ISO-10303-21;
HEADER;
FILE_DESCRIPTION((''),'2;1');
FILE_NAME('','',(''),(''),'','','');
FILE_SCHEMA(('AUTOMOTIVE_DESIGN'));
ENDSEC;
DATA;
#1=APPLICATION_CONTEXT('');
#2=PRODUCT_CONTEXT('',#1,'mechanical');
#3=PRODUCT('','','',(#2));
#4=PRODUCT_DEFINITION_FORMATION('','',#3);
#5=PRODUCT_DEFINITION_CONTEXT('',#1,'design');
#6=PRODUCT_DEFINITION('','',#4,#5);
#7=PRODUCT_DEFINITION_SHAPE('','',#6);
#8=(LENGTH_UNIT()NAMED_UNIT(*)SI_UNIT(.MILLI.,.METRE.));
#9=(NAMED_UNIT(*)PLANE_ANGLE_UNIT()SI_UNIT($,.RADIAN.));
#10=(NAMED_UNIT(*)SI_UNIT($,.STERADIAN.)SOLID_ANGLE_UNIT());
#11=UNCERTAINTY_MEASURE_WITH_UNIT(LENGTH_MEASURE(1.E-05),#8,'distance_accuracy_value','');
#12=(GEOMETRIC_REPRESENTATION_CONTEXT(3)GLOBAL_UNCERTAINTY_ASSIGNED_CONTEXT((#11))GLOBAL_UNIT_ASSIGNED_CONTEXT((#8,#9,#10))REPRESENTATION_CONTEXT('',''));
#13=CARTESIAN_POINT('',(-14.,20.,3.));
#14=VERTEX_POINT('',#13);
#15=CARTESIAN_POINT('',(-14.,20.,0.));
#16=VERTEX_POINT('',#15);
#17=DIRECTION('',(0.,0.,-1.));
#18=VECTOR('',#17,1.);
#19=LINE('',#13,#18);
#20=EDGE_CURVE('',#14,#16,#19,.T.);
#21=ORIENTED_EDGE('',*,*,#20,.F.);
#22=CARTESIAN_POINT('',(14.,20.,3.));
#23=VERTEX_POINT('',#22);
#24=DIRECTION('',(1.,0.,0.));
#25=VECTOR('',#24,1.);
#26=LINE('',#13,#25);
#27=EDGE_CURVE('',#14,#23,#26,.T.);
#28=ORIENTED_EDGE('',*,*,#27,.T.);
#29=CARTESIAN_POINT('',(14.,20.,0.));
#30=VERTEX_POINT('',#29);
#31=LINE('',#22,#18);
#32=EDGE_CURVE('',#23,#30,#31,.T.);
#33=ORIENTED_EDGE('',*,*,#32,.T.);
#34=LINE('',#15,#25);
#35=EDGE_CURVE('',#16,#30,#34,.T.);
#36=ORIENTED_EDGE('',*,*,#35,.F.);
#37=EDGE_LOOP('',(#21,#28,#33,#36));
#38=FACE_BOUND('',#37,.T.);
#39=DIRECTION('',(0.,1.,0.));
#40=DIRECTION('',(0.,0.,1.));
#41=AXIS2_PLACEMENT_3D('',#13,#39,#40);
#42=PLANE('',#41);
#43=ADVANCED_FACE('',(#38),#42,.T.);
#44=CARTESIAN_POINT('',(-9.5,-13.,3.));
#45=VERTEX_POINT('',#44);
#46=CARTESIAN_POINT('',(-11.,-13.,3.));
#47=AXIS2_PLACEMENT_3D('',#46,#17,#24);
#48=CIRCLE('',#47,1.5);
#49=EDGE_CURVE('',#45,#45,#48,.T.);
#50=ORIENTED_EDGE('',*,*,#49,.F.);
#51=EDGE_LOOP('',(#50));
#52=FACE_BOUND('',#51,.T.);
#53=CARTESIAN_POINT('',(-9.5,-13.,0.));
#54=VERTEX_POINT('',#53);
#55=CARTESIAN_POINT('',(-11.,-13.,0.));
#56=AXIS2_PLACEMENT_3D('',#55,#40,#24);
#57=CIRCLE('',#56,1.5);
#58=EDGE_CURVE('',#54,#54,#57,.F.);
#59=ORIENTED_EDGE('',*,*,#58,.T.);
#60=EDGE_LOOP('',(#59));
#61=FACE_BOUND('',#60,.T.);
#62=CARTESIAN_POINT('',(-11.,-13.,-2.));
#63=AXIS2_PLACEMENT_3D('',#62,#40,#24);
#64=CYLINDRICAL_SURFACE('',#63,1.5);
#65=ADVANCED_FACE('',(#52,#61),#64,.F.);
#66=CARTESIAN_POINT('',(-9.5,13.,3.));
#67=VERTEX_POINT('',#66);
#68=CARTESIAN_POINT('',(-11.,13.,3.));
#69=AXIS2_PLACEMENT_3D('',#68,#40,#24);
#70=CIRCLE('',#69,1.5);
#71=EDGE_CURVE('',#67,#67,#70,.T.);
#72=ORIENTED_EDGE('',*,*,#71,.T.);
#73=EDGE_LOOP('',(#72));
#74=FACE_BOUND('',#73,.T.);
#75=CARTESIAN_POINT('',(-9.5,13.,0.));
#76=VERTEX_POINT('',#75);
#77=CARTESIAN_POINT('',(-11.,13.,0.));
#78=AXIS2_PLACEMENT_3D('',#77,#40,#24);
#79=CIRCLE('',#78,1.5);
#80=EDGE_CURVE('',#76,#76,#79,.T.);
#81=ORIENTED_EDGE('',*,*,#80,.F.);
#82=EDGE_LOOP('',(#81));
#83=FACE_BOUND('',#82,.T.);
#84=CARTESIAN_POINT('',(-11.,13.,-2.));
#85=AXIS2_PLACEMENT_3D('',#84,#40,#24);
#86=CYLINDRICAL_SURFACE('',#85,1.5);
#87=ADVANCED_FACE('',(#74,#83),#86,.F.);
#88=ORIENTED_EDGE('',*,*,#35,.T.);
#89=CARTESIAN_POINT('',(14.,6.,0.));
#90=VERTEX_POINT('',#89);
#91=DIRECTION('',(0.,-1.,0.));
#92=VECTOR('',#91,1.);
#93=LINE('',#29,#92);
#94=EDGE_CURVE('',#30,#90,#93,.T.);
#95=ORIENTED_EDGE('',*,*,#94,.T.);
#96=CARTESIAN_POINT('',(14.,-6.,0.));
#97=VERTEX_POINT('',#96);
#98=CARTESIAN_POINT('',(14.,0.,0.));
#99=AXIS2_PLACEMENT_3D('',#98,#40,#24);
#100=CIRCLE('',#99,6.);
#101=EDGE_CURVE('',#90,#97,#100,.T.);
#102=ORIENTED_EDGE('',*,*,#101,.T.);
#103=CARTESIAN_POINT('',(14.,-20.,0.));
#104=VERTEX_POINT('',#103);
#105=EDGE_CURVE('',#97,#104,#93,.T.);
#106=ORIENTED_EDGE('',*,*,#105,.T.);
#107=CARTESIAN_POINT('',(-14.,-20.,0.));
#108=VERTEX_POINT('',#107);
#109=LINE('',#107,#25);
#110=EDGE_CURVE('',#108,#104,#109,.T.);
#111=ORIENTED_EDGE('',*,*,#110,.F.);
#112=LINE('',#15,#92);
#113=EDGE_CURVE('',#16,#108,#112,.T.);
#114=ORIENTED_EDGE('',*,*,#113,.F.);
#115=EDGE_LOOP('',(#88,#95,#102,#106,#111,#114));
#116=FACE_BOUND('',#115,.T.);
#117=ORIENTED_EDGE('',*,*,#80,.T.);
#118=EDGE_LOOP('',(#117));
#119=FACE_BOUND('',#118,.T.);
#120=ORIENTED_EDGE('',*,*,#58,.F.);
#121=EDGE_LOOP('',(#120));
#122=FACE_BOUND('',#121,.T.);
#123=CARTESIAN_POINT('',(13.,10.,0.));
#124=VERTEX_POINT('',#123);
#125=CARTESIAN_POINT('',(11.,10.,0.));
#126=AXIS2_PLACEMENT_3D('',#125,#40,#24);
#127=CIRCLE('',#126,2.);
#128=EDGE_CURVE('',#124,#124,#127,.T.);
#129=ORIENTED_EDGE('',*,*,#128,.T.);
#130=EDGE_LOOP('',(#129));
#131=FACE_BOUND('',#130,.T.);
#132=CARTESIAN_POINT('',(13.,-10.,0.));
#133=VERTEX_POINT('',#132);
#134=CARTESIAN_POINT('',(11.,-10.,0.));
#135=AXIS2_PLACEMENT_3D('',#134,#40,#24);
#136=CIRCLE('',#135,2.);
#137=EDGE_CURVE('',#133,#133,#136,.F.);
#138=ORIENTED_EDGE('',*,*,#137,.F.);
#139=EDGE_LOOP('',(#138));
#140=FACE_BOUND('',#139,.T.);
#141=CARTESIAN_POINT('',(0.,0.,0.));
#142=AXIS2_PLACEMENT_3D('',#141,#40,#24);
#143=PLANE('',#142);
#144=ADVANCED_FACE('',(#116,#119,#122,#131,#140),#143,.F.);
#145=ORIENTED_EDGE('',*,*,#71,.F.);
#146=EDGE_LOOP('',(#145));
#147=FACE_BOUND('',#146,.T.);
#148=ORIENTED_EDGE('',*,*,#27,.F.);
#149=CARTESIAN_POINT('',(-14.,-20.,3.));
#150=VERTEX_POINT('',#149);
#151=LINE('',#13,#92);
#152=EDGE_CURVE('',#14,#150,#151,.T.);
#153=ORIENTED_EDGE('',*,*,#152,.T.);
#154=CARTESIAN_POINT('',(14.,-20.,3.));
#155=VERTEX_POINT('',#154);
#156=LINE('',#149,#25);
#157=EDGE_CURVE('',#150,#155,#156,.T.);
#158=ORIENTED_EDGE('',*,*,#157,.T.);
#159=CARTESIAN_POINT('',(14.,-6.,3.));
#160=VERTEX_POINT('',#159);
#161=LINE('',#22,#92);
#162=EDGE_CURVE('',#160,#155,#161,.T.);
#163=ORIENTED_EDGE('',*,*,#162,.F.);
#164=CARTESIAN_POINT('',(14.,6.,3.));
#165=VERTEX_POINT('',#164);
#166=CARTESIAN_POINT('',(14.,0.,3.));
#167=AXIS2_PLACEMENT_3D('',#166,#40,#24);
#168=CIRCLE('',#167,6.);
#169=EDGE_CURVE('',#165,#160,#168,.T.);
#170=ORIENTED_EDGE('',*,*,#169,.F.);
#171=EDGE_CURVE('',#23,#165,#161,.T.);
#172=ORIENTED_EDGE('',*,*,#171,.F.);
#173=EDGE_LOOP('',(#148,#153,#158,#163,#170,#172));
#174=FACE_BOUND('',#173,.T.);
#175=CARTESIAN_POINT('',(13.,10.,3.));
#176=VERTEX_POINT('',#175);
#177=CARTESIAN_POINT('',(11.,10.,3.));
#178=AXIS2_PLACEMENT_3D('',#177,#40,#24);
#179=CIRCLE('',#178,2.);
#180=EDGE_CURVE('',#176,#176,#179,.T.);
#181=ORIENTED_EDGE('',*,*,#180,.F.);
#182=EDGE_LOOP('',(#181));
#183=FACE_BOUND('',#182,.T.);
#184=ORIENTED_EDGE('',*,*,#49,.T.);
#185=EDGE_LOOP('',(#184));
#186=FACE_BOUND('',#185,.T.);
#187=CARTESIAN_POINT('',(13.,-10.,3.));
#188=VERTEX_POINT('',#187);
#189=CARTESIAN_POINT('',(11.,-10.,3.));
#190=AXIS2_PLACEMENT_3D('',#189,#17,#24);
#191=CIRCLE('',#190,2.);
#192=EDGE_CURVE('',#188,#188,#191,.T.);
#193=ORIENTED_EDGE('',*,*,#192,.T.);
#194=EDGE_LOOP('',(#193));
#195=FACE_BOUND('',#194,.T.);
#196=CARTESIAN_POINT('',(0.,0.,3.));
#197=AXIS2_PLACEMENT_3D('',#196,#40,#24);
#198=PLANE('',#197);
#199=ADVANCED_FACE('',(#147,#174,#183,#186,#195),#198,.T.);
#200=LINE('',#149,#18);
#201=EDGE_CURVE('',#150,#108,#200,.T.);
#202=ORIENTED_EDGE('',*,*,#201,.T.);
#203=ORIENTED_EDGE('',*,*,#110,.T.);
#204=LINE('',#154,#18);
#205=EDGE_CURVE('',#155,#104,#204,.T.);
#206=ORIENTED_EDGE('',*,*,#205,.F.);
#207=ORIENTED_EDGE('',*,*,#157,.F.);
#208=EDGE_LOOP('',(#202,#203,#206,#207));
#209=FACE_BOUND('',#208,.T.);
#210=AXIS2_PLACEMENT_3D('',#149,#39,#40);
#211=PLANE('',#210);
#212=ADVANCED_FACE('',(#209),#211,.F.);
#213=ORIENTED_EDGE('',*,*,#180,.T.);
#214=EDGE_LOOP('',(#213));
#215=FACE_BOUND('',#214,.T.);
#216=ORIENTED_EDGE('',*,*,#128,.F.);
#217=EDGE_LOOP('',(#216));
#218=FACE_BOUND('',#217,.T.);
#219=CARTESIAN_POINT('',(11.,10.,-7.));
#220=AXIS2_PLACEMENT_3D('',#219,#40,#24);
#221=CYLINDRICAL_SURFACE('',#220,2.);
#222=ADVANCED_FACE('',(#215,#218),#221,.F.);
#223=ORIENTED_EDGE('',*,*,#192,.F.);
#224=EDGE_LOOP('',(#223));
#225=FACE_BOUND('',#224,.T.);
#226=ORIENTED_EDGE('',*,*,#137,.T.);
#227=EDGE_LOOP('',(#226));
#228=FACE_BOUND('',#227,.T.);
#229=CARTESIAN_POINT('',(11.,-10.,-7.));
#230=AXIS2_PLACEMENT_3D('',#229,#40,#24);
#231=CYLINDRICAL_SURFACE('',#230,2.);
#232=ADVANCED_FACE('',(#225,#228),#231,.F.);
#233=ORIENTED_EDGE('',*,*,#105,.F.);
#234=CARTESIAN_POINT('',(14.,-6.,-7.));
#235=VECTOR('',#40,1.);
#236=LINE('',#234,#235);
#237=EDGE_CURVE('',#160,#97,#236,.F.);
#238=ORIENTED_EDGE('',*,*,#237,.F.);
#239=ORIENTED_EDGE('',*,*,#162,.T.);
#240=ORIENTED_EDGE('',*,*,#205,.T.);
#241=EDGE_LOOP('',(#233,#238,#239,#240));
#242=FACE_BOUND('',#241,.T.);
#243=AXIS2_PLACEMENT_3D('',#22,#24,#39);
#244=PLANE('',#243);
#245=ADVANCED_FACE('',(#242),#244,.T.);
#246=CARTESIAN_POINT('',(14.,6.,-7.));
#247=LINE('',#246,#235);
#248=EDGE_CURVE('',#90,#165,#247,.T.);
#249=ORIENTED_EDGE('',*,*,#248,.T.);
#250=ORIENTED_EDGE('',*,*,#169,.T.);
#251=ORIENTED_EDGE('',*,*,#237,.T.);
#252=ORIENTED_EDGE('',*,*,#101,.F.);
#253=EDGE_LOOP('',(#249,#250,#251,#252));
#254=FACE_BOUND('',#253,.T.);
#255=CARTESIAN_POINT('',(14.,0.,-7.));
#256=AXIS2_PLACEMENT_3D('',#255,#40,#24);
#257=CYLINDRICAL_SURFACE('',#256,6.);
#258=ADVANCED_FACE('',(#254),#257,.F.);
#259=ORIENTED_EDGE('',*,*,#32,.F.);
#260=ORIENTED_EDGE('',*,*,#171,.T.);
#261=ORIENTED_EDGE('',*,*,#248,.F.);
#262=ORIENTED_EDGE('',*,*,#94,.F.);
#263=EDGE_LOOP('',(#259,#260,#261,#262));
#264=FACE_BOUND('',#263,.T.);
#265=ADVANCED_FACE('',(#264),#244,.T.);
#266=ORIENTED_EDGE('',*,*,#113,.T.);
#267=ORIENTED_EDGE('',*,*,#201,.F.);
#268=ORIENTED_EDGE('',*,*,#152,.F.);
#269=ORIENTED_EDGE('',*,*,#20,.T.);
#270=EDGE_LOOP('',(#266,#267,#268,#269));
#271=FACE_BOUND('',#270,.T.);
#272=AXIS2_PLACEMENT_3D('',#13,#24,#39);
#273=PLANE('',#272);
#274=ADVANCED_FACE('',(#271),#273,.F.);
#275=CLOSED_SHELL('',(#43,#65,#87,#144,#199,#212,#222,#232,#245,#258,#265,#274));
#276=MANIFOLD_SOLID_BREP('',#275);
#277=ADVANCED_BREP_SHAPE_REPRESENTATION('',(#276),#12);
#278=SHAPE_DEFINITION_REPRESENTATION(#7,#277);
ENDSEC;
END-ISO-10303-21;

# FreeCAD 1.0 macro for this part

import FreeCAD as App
import Part
import Sketcher

V = App.Vector


def add_polygon(sketch, points):
    """Adds a closed chain of lines whose ends are joined by coincident constraints."""
    first, n = sketch.GeometryCount, len(points)
    for a, b in zip(points, points[1:] + points[:1]):
        sketch.addGeometry(Part.LineSegment(App.Vector(*a, 0), App.Vector(*b, 0)), False)
    for i in range(n):
        sketch.addConstraint(Sketcher.Constraint("Coincident", first + i, 2, first + (i + 1) % n, 1))

doc = App.newDocument("Part")
body = doc.addObject("PartDesign::Body", "Body")

# Sketch on XY plane
sketch1 = body.newObject("Sketcher::SketchObject", "Sketch")
sketch1.AttachmentSupport = (doc.getObject("XY_Plane"), [""])
sketch1.MapMode = "FlatFace"
add_polygon(sketch1, [(-14, 20), (-14, -20), (14, -20), (14, 20)])  # lines 0-3
sketch1.addConstraint(Sketcher.Constraint("Vertical", 0))
sketch1.addConstraint(Sketcher.Constraint("Horizontal", 1))
sketch1.addConstraint(Sketcher.Constraint("Vertical", 2))
sketch1.addConstraint(Sketcher.Constraint("Horizontal", 3))
sketch1.addConstraint(Sketcher.Constraint("Symmetric", 0, 2, 2, 2, -1, 1))
sketch1.addConstraint(Sketcher.Constraint("DistanceX", 1, 1, 1, 2, 28.0))
sketch1.addConstraint(Sketcher.Constraint("DistanceY", 0, 2, 0, 1, 40.0))
pad1 = body.newObject("PartDesign::Pad", "Pad")
pad1.Profile = sketch1
pad1.Length = 3

# Sketch on XY plane
sketch2 = body.newObject("Sketcher::SketchObject", "Sketch001")
sketch2.AttachmentSupport = (doc.getObject("XY_Plane"), [""])
sketch2.MapMode = "FlatFace"
sketch2.AttachmentOffset = App.Placement(V(0, 0, 3), App.Rotation())
sketch2.addGeometry(Part.Circle(V(-11, 13, 0), V(0, 0, 1), 1.5), False)
sketch2.addConstraint(Sketcher.Constraint("Diameter", 0, 3.0))
sketch2.addConstraint(Sketcher.Constraint("DistanceX", 0, 3, -1, 1, 11.0))
sketch2.addConstraint(Sketcher.Constraint("DistanceY", -1, 1, 0, 3, 13.0))
pocket1 = body.newObject("PartDesign::Pocket", "Pocket")
pocket1.Profile = sketch2
pocket1.Length = 5
doc.recompute()

mirrored = body.newObject("PartDesign::Mirrored", "Mirrored")
mirrored.Originals = [pocket1]
mirrored.MirrorPlane = (doc.getObject("XZ_Plane"), [""])
body.Tip = mirrored

# Sketch on XY plane
sketch3 = body.newObject("Sketcher::SketchObject", "Sketch002")
sketch3.AttachmentSupport = (doc.getObject("XY_Plane"), [""])
sketch3.MapMode = "FlatFace"
sketch3.AttachmentOffset = App.Placement(V(0, 0, 3), App.Rotation())
sketch3.addGeometry(Part.Circle(V(11, 10, 0), V(0, 0, 1), 2), False)
sketch3.addConstraint(Sketcher.Constraint("Diameter", 0, 4.0))
sketch3.addConstraint(Sketcher.Constraint("DistanceX", -1, 1, 0, 3, 11.0))
sketch3.addConstraint(Sketcher.Constraint("DistanceY", -1, 1, 0, 3, 10.0))
pocket2 = body.newObject("PartDesign::Pocket", "Pocket001")
pocket2.Profile = sketch3
pocket2.Length = 10
doc.recompute()

mirrored2 = body.newObject("PartDesign::Mirrored", "Mirrored001")
mirrored2.Originals = [pocket2]
mirrored2.MirrorPlane = (doc.getObject("XZ_Plane"), [""])
body.Tip = mirrored2

# Sketch on XY plane
sketch4 = body.newObject("Sketcher::SketchObject", "Sketch003")
sketch4.AttachmentSupport = (doc.getObject("XY_Plane"), [""])
sketch4.MapMode = "FlatFace"
sketch4.AttachmentOffset = App.Placement(V(0, 0, 3), App.Rotation())
sketch4.addGeometry(Part.Circle(V(14, 0, 0), V(0, 0, 1), 6), False)
sketch4.addConstraint(Sketcher.Constraint("PointOnObject", 0, 3, -1))
sketch4.addConstraint(Sketcher.Constraint("Diameter", 0, 12.0))
sketch4.addConstraint(Sketcher.Constraint("DistanceX", -1, 1, 0, 3, 14.0))
pocket3 = body.newObject("PartDesign::Pocket", "Pocket002")
pocket3.Profile = sketch4
pocket3.Length = 10

doc.recompute()
